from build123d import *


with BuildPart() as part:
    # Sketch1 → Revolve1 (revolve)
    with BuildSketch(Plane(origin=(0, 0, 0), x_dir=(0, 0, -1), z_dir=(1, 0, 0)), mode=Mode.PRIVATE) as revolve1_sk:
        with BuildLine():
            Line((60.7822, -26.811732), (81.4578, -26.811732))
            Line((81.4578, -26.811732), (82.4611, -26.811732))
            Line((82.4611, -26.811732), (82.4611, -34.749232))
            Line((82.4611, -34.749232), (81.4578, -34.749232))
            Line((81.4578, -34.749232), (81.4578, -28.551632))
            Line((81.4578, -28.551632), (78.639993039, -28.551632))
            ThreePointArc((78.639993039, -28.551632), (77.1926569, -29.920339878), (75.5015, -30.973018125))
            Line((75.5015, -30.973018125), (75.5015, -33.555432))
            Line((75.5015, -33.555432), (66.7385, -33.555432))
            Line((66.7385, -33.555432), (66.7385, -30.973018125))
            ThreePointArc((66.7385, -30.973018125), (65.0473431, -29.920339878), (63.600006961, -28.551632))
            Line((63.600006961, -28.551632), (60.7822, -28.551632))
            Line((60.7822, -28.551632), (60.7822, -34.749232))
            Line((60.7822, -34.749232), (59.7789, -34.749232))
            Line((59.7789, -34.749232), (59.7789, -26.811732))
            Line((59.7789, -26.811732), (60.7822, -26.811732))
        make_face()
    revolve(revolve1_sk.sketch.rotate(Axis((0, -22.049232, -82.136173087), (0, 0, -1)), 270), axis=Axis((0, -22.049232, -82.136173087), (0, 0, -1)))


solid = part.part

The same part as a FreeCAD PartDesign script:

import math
import FreeCAD as App
import Part
import Sketcher
from FreeCAD import Vector
Q = App.Units.Quantity

doc = App.newDocument("Part")
body = doc.addObject("PartDesign::Body", "Body")

# Sketch on YZ plane
sketch1 = body.newObject("Sketcher::SketchObject", "Sketch")
sketch1.AttachmentSupport = (doc.getObject("YZ_Plane"), [""])
sketch1.MapMode = "FlatFace"
sketch1.addGeometry(Part.LineSegment(Vector(-34.7, -82.5, 0), Vector(-26.8, -82.5, 0)), False)
sketch1.addGeometry(Part.LineSegment(Vector(-26.8, -82.5, 0), Vector(-26.8, -59.8, 0)), False)
sketch1.addGeometry(Part.LineSegment(Vector(-26.8, -59.8, 0), Vector(-34.7, -59.8, 0)), False)
sketch1.addGeometry(Part.LineSegment(Vector(-34.7, -59.8, 0), Vector(-34.7, -60.8, 0)), False)
sketch1.addGeometry(Part.LineSegment(Vector(-34.7, -60.8, 0), Vector(-28.6, -60.8, 0)), False)
sketch1.addGeometry(Part.LineSegment(Vector(-28.6, -60.8, 0), Vector(-28.6, -63.6, 0)), False)
sketch1.addGeometry(Part.ArcOfCircle(Part.Circle(Vector(-22, -71.1, 0), Vector(0, 0, 1), 9.9), math.radians(131), math.radians(154)), False)
sketch1.addGeometry(Part.LineSegment(Vector(-31, -66.7, 0), Vector(-33.6, -66.7, 0)), False)
sketch1.addGeometry(Part.LineSegment(Vector(-33.6, -66.7, 0), Vector(-33.6, -75.5, 0)), False)
sketch1.addGeometry(Part.LineSegment(Vector(-33.6, -75.5, 0), Vector(-31, -75.5, 0)), False)
sketch1.addGeometry(Part.ArcOfCircle(Part.Circle(Vector(-22, -71.1, 0), Vector(0, 0, 1), 9.9), math.radians(-154), math.radians(-131)), False)
sketch1.addGeometry(Part.LineSegment(Vector(-28.6, -78.6, 0), Vector(-28.6, -81.5, 0)), False)
sketch1.addGeometry(Part.LineSegment(Vector(-28.6, -81.5, 0), Vector(-34.7, -81.5, 0)), False)
sketch1.addGeometry(Part.LineSegment(Vector(-34.7, -81.5, 0), Vector(-34.7, -82.5, 0)), False)
sketch1.addGeometry(Part.LineSegment(Vector(-22, -59.8, 0), Vector(-22, -82.5, 0)), True)  # axis
sketch1.addConstraint(Sketcher.Constraint("Coincident", 0, 2, 1, 1))
sketch1.addConstraint(Sketcher.Constraint("Coincident", 1, 2, 2, 1))
sketch1.addConstraint(Sketcher.Constraint("Coincident", 2, 2, 3, 1))
sketch1.addConstraint(Sketcher.Constraint("Coincident", 3, 2, 4, 1))
sketch1.addConstraint(Sketcher.Constraint("Coincident", 4, 2, 5, 1))
sketch1.addConstraint(Sketcher.Constraint("Coincident", 5, 2, 6, 1))
sketch1.addConstraint(Sketcher.Constraint("Coincident", 6, 2, 7, 1))
sketch1.addConstraint(Sketcher.Constraint("Coincident", 7, 2, 8, 1))
sketch1.addConstraint(Sketcher.Constraint("Coincident", 8, 2, 9, 1))
sketch1.addConstraint(Sketcher.Constraint("Coincident", 9, 2, 10, 1))
sketch1.addConstraint(Sketcher.Constraint("Coincident", 10, 2, 11, 1))
sketch1.addConstraint(Sketcher.Constraint("Coincident", 11, 2, 12, 1))
sketch1.addConstraint(Sketcher.Constraint("Coincident", 12, 2, 13, 1))
sketch1.addConstraint(Sketcher.Constraint("Coincident", 13, 2, 0, 1))
sketch1.addConstraint(Sketcher.Constraint("Horizontal", 0))
sketch1.addConstraint(Sketcher.Constraint("Vertical", 1))
sketch1.addConstraint(Sketcher.Constraint("Horizontal", 2))
sketch1.addConstraint(Sketcher.Constraint("Vertical", 3))
sketch1.addConstraint(Sketcher.Constraint("Horizontal", 4))
sketch1.addConstraint(Sketcher.Constraint("Vertical", 5))
sketch1.addConstraint(Sketcher.Constraint("Horizontal", 7))
sketch1.addConstraint(Sketcher.Constraint("Vertical", 8))
sketch1.addConstraint(Sketcher.Constraint("Horizontal", 9))
sketch1.addConstraint(Sketcher.Constraint("Vertical", 11))
sketch1.addConstraint(Sketcher.Constraint("Horizontal", 12))
sketch1.addConstraint(Sketcher.Constraint("Vertical", 13))
sketch1.addConstraint(Sketcher.Constraint("Vertical", 14))
sketch1.addConstraint(Sketcher.Constraint("Coincident", 10, 3, 6, 3))
sketch1.addConstraint(Sketcher.Constraint("Equal", 6, 10))
sketch1.addConstraint(Sketcher.Constraint("Horizontal", 2, 2, 14, 1))
sketch1.addConstraint(Sketcher.Constraint("Horizontal", 13, 2, 14, 2))
sketch1.addConstraint(Sketcher.Constraint("Vertical", 6, 2, 9, 2))
sketch1.addConstraint(Sketcher.Constraint("Vertical", 5, 2, 10, 2))
sketch1.addConstraint(Sketcher.Constraint("Vertical", 3, 2, 12, 2))
sketch1.addConstraint(Sketcher.Constraint("Vertical", 10, 3, 14, 1))
sketch1.addConstraint(Sketcher.Constraint("Equal", 5, 11))
sketch1.addConstraint(Sketcher.Constraint("Equal", 3, 13))
sketch1.addConstraint(Sketcher.Constraint("DistanceY", 6, 3, -1, 1, Q("2.8 in")))
sketch1.addConstraint(Sketcher.Constraint("DistanceX", 2, 2, 10, 3, Q("0.5 in")))
sketch1.addConstraint(Sketcher.Constraint("DistanceX", 0, 1, 0, 2, Q("0.3125 in")))
sketch1.addConstraint(Sketcher.Constraint("DistanceX", 4, 1, 4, 2, Q("0.244 in")))
sketch1.addConstraint(Sketcher.Constraint("DistanceY", 1, 1, 1, 2, Q("0.893 in")))
sketch1.addConstraint(Sketcher.Constraint("DistanceY", 8, 2, 8, 1, Q("0.345 in")))
sketch1.addConstraint(Sketcher.Constraint("DistanceY", 3, 2, 3, 1, Q("0.0395 in")))
sketch1.addConstraint(Sketcher.Constraint("DistanceX", 7, 2, 5, 2, Q("0.197 in")))
sketch1.addConstraint(Sketcher.Constraint("Radius", 6, Q("9.941403 mm")))
sketch1.addConstraint(Sketcher.Constraint("DistanceX", 6, 3, -1, 1, Q("22.049232 mm")))
revolution = body.newObject("PartDesign::Revolution", "Revolution")
revolution.Profile = sketch1
revolution.ReferenceAxis = (sketch1, ["Axis0"])
revolution.Angle = 360

doc.recompute()
